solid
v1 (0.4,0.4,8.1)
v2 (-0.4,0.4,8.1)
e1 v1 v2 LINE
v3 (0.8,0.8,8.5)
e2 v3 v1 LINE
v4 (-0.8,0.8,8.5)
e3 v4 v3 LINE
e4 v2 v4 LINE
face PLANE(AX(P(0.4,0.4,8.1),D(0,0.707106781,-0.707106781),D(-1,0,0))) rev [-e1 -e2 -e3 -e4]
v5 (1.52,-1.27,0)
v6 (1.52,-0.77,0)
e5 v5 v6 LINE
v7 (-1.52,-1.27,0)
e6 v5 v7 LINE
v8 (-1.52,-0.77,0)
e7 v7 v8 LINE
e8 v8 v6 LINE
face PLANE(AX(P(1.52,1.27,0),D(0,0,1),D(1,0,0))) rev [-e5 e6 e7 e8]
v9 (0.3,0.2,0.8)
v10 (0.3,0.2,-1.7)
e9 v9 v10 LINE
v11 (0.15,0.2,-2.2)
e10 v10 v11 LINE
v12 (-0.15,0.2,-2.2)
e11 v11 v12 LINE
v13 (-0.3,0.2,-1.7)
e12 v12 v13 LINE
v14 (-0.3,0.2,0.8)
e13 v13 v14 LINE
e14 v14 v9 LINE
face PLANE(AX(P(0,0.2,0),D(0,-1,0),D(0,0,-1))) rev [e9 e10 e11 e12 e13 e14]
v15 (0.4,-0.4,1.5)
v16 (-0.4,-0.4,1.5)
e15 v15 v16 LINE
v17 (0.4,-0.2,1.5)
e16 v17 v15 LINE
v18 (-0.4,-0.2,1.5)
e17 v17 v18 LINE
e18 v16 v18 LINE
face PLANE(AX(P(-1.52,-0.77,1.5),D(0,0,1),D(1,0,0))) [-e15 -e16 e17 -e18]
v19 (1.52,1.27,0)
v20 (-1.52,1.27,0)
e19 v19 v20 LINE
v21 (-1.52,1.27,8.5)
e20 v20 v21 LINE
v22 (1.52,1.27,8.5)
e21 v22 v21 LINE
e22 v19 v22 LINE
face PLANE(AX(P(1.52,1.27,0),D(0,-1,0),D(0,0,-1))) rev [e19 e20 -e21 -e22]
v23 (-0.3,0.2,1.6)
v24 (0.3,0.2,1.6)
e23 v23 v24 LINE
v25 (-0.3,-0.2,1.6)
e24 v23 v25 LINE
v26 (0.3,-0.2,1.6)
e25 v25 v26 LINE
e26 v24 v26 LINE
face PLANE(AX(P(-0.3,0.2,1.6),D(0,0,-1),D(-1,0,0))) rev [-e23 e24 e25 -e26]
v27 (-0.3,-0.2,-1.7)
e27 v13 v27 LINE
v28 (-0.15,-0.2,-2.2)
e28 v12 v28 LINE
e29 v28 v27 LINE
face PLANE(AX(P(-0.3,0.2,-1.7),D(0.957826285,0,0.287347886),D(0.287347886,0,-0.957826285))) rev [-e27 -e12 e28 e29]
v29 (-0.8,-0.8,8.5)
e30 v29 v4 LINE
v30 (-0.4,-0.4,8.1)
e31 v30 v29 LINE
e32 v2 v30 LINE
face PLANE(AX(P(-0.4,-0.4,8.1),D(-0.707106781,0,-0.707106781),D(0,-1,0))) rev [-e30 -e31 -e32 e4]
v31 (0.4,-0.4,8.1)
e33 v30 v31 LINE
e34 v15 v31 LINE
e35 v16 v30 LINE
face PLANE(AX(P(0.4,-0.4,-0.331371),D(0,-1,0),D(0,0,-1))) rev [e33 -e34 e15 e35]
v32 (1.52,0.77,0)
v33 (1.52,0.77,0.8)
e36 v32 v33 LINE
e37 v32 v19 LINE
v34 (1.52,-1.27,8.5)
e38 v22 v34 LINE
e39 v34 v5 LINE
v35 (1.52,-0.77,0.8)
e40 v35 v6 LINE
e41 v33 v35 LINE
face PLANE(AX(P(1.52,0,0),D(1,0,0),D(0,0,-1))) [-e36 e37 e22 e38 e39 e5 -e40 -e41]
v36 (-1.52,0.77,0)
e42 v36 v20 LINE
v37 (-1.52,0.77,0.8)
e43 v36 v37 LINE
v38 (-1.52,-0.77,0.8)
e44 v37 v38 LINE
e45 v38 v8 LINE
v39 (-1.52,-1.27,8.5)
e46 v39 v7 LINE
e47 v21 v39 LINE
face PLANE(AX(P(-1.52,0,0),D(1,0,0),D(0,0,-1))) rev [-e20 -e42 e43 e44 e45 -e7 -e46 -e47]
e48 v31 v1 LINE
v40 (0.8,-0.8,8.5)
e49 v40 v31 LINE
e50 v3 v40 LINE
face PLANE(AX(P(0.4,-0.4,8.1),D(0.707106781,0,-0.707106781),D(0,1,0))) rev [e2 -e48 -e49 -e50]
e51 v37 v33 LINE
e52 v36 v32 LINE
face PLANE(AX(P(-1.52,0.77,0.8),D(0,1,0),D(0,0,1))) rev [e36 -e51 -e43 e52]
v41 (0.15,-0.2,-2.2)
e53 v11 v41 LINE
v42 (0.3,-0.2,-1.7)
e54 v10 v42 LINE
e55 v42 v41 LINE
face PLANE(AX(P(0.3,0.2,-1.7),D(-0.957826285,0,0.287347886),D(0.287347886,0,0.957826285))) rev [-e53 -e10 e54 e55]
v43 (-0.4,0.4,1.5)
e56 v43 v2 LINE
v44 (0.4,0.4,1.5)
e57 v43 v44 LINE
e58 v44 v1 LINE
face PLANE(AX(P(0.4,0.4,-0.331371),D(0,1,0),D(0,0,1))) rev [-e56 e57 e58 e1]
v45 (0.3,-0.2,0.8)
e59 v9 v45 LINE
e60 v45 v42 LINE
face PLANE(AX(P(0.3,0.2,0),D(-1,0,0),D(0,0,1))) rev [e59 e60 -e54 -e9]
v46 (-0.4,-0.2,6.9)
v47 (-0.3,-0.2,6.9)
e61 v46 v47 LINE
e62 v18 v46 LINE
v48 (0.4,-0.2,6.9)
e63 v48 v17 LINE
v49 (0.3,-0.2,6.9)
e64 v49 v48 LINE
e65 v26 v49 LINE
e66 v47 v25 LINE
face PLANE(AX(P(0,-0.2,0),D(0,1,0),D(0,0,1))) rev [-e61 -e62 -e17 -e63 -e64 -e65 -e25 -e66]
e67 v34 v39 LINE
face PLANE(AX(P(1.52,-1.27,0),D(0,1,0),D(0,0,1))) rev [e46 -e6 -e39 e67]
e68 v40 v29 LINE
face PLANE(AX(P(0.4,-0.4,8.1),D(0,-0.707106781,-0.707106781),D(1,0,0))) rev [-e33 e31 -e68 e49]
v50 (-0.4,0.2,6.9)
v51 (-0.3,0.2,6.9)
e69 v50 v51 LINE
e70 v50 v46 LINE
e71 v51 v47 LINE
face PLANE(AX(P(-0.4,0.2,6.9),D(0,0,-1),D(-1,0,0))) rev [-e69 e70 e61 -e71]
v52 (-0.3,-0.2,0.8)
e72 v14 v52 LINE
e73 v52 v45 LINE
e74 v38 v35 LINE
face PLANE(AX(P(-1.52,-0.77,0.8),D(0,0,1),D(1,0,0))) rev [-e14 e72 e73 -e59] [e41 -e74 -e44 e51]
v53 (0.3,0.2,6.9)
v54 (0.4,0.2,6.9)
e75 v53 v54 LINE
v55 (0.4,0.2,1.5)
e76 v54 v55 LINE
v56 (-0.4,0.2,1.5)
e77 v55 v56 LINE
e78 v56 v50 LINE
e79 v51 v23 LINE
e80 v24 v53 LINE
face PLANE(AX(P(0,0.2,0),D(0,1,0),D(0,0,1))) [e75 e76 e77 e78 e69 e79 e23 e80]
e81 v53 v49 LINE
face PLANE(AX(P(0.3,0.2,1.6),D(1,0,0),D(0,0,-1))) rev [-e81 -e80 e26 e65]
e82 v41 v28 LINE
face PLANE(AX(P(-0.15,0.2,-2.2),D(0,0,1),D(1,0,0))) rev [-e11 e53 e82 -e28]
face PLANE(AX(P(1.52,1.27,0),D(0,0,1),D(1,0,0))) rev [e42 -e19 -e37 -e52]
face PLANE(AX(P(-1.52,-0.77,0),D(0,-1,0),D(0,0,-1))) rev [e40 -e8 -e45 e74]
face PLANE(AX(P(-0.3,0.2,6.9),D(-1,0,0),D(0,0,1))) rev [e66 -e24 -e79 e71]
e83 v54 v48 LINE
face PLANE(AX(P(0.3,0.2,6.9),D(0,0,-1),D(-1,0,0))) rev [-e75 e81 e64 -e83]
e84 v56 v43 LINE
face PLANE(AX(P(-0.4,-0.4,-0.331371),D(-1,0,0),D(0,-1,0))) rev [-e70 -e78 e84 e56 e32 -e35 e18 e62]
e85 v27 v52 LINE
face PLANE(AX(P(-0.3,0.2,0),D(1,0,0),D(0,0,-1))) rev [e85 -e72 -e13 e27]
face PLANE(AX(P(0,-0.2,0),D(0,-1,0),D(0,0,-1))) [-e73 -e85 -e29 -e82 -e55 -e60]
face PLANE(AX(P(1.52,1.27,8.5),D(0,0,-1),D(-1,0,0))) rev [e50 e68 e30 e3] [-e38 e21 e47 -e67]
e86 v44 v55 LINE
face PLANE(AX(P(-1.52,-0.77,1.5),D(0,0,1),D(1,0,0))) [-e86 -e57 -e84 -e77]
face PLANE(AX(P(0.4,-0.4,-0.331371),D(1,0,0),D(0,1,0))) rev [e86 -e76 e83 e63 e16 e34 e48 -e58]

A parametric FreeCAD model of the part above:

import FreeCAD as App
import Part
import Sketcher
from FreeCAD import Vector


def edges_at(feature, points):
    """Names of the edges that pass closest to the given points."""
    edges = feature.Shape.Edges
    near = lambda p: min(range(len(edges)), key=lambda i: edges[i].distToShape(Part.Vertex(*p))[0])
    return sorted({f"Edge{near(p) + 1}" for p in points})


def add_polygon(sketch, points):
    """Adds a closed chain of lines whose ends are joined by coincident constraints."""
    first, n = sketch.GeometryCount, len(points)
    for a, b in zip(points, points[1:] + points[:1]):
        sketch.addGeometry(Part.LineSegment(App.Vector(*a, 0), App.Vector(*b, 0)), False)
    for i in range(n):
        sketch.addConstraint(Sketcher.Constraint("Coincident", first + i, 2, first + (i + 1) % n, 1))

doc = App.newDocument("Part")
body = doc.addObject("PartDesign::Body", "Body")

# Sketch on YZ plane
sketch1 = doc.addObject("Sketcher::SketchObject", "Sketch")
body.addObject(sketch1)
sketch1.AttachmentSupport = (doc.YZ_Plane, [""])
sketch1.MapMode = "FlatFace"
add_polygon(sketch1, [(1.3, 0), (1.3, 8.5), (-1.3, 8.5), (-1.3, 0)])  # lines 0-3
sketch1.addConstraint([
    Sketcher.Constraint("Vertical", 0),
    Sketcher.Constraint("Horizontal", 1),
    Sketcher.Constraint("Vertical", 2),
    Sketcher.Constraint("Horizontal", 3),
    Sketcher.Constraint("Symmetric", 2, 2, 3, 2, -1, 1),
    Sketcher.Constraint("DistanceY", 0, 1, 0, 2, 8.5),
    Sketcher.Constraint("DistanceX", 1, 2, 1, 1, 2.54),
])
pad1 = doc.addObject("PartDesign::Pad", "Pad")
body.addObject(pad1)
pad1.Profile = sketch1
pad1.Length = 3.04
pad1.Midplane = True

# Sketch on YZ plane
sketch2 = doc.addObject("Sketcher::SketchObject", "Sketch001")
body.addObject(sketch2)
sketch2.AttachmentSupport = (doc.YZ_Plane, [""])
sketch2.MapMode = "FlatFace"
sketch2.AttachmentOffset = App.Placement(Vector(0, 0, 1.52), App.Rotation())
add_polygon(sketch2, [(0.8, 0.8), (-0.8, 0.8), (-0.8, 0), (0.8, 0)])  # lines 0-3
sketch2.addConstraint([
    Sketcher.Constraint("Horizontal", 0),
    Sketcher.Constraint("Vertical", 1),
    Sketcher.Constraint("Horizontal", 2),
    Sketcher.Constraint("Vertical", 3),
    Sketcher.Constraint("Symmetric", 1, 2, 2, 2, -1, 1),
    Sketcher.Constraint("DistanceY", 1, 2, 1, 1, 0.8),
    Sketcher.Constraint("DistanceX", 0, 2, 0, 1, 1.54),
])
pocket1 = doc.addObject("PartDesign::Pocket", "Pocket")
body.addObject(pocket1)
pocket1.Profile = sketch2
pocket1.Type = "ThroughAll"

# Sketch on XY plane
sketch3 = doc.addObject("Sketcher::SketchObject", "Sketch002")
body.addObject(sketch3)
sketch3.AttachmentSupport = (doc.XY_Plane, [""])
sketch3.MapMode = "FlatFace"
sketch3.AttachmentOffset = App.Placement(Vector(0, 0, 8.5), App.Rotation())
add_polygon(sketch3, [(0.4, -0.4), (0.4, 0.4), (-0.4, 0.4), (-0.4, -0.4)])  # lines 0-3
sketch3.addConstraint([
    Sketcher.Constraint("Vertical", 0),
    Sketcher.Constraint("Horizontal", 1),
    Sketcher.Constraint("Vertical", 2),
    Sketcher.Constraint("Horizontal", 3),
    Sketcher.Constraint("Symmetric", 0, 2, 2, 2, -1, 1),
    Sketcher.Constraint("Equal", 3, 0),
    Sketcher.Constraint("DistanceX", 1, 2, 1, 1, 0.8),
])
pocket2 = doc.addObject("PartDesign::Pocket", "Pocket001")
body.addObject(pocket2)
pocket2.Profile = sketch3
pocket2.Length = 7
doc.recompute()

chamfer = doc.addObject("PartDesign::Chamfer", "Chamfer")
body.addObject(chamfer)
chamfer.Base = (pocket2, edges_at(pocket2, [
    (-0.4, 0, 8.5),
    (0, -0.4, 8.5),
    (0.4, 0, 8.5),
    (0, 0.4, 8.5),
]))
chamfer.Size = 0.4

# Sketch on XZ plane
sketch4 = doc.addObject("Sketcher::SketchObject", "Sketch003")
body.addObject(sketch4)
sketch4.AttachmentSupport = (doc.XZ_Plane, [""])
sketch4.MapMode = "FlatFace"
add_polygon(sketch4, [(-0.3, -1.7), (-0.3, 0.8), (0.3, 0.8), (0.3, -1.7), (0.15, -2.2), (-0.15, -2.2)])  # lines 0-5
add_polygon(sketch4, [(0.4, 1.5), (-0.4, 1.5), (-0.4, 6.9), (-0.3, 6.9), (-0.3, 1.6), (0.3, 1.6), (0.3, 6.9), (0.4, 6.9)])  # lines 6-13
sketch4.addConstraint([
    Sketcher.Constraint("Vertical", 0),
    Sketcher.Constraint("Horizontal", 1),
    Sketcher.Constraint("Vertical", 2),
    Sketcher.Constraint("Horizontal", 4),
    Sketcher.Constraint("Horizontal", 6),
    Sketcher.Constraint("Vertical", 7),
    Sketcher.Constraint("Horizontal", 8),
    Sketcher.Constraint("Vertical", 9),
    Sketcher.Constraint("Horizontal", 10),
    Sketcher.Constraint("Vertical", 11),
    Sketcher.Constraint("Horizontal", 12),
    Sketcher.Constraint("Vertical", 13),
    Sketcher.Constraint("Symmetric", 2, 2, 5, 2, -2),
    Sketcher.Constraint("Symmetric", 8, 2, 11, 2, -2),
    Sketcher.Constraint("Vertical", 5, 2, 8, 2),
    Sketcher.Constraint("Equal", 8, 12),
    Sketcher.Constraint("Equal", 3, 5),
    Sketcher.Constraint("DistanceX", 1, 1, 1, 2, 0.6),
    Sketcher.Constraint("DistanceX", 4, 2, 4, 1, 0.3),
    Sketcher.Constraint("DistanceX", 6, 2, 6, 1, 0.8),
    Sketcher.Constraint("DistanceY", 0, 1, 0, 2, 2.5),
    Sketcher.Constraint("DistanceY", 7, 1, 7, 2, 5.4),
    Sketcher.Constraint("DistanceY", 9, 2, 9, 1, 5.3),
    Sketcher.Constraint("DistanceY", 3, 2, 1, 2, 3.0),
    Sketcher.Constraint("DistanceY", -1, 1, 0, 2, 0.8),
    Sketcher.Constraint("DistanceY", -1, 1, 6, 2, 1.5),
])
pad2 = doc.addObject("PartDesign::Pad", "Pad001")
body.addObject(pad2)
pad2.Profile = sketch4
pad2.Length = 0.4
pad2.Midplane = True

doc.recompute()
